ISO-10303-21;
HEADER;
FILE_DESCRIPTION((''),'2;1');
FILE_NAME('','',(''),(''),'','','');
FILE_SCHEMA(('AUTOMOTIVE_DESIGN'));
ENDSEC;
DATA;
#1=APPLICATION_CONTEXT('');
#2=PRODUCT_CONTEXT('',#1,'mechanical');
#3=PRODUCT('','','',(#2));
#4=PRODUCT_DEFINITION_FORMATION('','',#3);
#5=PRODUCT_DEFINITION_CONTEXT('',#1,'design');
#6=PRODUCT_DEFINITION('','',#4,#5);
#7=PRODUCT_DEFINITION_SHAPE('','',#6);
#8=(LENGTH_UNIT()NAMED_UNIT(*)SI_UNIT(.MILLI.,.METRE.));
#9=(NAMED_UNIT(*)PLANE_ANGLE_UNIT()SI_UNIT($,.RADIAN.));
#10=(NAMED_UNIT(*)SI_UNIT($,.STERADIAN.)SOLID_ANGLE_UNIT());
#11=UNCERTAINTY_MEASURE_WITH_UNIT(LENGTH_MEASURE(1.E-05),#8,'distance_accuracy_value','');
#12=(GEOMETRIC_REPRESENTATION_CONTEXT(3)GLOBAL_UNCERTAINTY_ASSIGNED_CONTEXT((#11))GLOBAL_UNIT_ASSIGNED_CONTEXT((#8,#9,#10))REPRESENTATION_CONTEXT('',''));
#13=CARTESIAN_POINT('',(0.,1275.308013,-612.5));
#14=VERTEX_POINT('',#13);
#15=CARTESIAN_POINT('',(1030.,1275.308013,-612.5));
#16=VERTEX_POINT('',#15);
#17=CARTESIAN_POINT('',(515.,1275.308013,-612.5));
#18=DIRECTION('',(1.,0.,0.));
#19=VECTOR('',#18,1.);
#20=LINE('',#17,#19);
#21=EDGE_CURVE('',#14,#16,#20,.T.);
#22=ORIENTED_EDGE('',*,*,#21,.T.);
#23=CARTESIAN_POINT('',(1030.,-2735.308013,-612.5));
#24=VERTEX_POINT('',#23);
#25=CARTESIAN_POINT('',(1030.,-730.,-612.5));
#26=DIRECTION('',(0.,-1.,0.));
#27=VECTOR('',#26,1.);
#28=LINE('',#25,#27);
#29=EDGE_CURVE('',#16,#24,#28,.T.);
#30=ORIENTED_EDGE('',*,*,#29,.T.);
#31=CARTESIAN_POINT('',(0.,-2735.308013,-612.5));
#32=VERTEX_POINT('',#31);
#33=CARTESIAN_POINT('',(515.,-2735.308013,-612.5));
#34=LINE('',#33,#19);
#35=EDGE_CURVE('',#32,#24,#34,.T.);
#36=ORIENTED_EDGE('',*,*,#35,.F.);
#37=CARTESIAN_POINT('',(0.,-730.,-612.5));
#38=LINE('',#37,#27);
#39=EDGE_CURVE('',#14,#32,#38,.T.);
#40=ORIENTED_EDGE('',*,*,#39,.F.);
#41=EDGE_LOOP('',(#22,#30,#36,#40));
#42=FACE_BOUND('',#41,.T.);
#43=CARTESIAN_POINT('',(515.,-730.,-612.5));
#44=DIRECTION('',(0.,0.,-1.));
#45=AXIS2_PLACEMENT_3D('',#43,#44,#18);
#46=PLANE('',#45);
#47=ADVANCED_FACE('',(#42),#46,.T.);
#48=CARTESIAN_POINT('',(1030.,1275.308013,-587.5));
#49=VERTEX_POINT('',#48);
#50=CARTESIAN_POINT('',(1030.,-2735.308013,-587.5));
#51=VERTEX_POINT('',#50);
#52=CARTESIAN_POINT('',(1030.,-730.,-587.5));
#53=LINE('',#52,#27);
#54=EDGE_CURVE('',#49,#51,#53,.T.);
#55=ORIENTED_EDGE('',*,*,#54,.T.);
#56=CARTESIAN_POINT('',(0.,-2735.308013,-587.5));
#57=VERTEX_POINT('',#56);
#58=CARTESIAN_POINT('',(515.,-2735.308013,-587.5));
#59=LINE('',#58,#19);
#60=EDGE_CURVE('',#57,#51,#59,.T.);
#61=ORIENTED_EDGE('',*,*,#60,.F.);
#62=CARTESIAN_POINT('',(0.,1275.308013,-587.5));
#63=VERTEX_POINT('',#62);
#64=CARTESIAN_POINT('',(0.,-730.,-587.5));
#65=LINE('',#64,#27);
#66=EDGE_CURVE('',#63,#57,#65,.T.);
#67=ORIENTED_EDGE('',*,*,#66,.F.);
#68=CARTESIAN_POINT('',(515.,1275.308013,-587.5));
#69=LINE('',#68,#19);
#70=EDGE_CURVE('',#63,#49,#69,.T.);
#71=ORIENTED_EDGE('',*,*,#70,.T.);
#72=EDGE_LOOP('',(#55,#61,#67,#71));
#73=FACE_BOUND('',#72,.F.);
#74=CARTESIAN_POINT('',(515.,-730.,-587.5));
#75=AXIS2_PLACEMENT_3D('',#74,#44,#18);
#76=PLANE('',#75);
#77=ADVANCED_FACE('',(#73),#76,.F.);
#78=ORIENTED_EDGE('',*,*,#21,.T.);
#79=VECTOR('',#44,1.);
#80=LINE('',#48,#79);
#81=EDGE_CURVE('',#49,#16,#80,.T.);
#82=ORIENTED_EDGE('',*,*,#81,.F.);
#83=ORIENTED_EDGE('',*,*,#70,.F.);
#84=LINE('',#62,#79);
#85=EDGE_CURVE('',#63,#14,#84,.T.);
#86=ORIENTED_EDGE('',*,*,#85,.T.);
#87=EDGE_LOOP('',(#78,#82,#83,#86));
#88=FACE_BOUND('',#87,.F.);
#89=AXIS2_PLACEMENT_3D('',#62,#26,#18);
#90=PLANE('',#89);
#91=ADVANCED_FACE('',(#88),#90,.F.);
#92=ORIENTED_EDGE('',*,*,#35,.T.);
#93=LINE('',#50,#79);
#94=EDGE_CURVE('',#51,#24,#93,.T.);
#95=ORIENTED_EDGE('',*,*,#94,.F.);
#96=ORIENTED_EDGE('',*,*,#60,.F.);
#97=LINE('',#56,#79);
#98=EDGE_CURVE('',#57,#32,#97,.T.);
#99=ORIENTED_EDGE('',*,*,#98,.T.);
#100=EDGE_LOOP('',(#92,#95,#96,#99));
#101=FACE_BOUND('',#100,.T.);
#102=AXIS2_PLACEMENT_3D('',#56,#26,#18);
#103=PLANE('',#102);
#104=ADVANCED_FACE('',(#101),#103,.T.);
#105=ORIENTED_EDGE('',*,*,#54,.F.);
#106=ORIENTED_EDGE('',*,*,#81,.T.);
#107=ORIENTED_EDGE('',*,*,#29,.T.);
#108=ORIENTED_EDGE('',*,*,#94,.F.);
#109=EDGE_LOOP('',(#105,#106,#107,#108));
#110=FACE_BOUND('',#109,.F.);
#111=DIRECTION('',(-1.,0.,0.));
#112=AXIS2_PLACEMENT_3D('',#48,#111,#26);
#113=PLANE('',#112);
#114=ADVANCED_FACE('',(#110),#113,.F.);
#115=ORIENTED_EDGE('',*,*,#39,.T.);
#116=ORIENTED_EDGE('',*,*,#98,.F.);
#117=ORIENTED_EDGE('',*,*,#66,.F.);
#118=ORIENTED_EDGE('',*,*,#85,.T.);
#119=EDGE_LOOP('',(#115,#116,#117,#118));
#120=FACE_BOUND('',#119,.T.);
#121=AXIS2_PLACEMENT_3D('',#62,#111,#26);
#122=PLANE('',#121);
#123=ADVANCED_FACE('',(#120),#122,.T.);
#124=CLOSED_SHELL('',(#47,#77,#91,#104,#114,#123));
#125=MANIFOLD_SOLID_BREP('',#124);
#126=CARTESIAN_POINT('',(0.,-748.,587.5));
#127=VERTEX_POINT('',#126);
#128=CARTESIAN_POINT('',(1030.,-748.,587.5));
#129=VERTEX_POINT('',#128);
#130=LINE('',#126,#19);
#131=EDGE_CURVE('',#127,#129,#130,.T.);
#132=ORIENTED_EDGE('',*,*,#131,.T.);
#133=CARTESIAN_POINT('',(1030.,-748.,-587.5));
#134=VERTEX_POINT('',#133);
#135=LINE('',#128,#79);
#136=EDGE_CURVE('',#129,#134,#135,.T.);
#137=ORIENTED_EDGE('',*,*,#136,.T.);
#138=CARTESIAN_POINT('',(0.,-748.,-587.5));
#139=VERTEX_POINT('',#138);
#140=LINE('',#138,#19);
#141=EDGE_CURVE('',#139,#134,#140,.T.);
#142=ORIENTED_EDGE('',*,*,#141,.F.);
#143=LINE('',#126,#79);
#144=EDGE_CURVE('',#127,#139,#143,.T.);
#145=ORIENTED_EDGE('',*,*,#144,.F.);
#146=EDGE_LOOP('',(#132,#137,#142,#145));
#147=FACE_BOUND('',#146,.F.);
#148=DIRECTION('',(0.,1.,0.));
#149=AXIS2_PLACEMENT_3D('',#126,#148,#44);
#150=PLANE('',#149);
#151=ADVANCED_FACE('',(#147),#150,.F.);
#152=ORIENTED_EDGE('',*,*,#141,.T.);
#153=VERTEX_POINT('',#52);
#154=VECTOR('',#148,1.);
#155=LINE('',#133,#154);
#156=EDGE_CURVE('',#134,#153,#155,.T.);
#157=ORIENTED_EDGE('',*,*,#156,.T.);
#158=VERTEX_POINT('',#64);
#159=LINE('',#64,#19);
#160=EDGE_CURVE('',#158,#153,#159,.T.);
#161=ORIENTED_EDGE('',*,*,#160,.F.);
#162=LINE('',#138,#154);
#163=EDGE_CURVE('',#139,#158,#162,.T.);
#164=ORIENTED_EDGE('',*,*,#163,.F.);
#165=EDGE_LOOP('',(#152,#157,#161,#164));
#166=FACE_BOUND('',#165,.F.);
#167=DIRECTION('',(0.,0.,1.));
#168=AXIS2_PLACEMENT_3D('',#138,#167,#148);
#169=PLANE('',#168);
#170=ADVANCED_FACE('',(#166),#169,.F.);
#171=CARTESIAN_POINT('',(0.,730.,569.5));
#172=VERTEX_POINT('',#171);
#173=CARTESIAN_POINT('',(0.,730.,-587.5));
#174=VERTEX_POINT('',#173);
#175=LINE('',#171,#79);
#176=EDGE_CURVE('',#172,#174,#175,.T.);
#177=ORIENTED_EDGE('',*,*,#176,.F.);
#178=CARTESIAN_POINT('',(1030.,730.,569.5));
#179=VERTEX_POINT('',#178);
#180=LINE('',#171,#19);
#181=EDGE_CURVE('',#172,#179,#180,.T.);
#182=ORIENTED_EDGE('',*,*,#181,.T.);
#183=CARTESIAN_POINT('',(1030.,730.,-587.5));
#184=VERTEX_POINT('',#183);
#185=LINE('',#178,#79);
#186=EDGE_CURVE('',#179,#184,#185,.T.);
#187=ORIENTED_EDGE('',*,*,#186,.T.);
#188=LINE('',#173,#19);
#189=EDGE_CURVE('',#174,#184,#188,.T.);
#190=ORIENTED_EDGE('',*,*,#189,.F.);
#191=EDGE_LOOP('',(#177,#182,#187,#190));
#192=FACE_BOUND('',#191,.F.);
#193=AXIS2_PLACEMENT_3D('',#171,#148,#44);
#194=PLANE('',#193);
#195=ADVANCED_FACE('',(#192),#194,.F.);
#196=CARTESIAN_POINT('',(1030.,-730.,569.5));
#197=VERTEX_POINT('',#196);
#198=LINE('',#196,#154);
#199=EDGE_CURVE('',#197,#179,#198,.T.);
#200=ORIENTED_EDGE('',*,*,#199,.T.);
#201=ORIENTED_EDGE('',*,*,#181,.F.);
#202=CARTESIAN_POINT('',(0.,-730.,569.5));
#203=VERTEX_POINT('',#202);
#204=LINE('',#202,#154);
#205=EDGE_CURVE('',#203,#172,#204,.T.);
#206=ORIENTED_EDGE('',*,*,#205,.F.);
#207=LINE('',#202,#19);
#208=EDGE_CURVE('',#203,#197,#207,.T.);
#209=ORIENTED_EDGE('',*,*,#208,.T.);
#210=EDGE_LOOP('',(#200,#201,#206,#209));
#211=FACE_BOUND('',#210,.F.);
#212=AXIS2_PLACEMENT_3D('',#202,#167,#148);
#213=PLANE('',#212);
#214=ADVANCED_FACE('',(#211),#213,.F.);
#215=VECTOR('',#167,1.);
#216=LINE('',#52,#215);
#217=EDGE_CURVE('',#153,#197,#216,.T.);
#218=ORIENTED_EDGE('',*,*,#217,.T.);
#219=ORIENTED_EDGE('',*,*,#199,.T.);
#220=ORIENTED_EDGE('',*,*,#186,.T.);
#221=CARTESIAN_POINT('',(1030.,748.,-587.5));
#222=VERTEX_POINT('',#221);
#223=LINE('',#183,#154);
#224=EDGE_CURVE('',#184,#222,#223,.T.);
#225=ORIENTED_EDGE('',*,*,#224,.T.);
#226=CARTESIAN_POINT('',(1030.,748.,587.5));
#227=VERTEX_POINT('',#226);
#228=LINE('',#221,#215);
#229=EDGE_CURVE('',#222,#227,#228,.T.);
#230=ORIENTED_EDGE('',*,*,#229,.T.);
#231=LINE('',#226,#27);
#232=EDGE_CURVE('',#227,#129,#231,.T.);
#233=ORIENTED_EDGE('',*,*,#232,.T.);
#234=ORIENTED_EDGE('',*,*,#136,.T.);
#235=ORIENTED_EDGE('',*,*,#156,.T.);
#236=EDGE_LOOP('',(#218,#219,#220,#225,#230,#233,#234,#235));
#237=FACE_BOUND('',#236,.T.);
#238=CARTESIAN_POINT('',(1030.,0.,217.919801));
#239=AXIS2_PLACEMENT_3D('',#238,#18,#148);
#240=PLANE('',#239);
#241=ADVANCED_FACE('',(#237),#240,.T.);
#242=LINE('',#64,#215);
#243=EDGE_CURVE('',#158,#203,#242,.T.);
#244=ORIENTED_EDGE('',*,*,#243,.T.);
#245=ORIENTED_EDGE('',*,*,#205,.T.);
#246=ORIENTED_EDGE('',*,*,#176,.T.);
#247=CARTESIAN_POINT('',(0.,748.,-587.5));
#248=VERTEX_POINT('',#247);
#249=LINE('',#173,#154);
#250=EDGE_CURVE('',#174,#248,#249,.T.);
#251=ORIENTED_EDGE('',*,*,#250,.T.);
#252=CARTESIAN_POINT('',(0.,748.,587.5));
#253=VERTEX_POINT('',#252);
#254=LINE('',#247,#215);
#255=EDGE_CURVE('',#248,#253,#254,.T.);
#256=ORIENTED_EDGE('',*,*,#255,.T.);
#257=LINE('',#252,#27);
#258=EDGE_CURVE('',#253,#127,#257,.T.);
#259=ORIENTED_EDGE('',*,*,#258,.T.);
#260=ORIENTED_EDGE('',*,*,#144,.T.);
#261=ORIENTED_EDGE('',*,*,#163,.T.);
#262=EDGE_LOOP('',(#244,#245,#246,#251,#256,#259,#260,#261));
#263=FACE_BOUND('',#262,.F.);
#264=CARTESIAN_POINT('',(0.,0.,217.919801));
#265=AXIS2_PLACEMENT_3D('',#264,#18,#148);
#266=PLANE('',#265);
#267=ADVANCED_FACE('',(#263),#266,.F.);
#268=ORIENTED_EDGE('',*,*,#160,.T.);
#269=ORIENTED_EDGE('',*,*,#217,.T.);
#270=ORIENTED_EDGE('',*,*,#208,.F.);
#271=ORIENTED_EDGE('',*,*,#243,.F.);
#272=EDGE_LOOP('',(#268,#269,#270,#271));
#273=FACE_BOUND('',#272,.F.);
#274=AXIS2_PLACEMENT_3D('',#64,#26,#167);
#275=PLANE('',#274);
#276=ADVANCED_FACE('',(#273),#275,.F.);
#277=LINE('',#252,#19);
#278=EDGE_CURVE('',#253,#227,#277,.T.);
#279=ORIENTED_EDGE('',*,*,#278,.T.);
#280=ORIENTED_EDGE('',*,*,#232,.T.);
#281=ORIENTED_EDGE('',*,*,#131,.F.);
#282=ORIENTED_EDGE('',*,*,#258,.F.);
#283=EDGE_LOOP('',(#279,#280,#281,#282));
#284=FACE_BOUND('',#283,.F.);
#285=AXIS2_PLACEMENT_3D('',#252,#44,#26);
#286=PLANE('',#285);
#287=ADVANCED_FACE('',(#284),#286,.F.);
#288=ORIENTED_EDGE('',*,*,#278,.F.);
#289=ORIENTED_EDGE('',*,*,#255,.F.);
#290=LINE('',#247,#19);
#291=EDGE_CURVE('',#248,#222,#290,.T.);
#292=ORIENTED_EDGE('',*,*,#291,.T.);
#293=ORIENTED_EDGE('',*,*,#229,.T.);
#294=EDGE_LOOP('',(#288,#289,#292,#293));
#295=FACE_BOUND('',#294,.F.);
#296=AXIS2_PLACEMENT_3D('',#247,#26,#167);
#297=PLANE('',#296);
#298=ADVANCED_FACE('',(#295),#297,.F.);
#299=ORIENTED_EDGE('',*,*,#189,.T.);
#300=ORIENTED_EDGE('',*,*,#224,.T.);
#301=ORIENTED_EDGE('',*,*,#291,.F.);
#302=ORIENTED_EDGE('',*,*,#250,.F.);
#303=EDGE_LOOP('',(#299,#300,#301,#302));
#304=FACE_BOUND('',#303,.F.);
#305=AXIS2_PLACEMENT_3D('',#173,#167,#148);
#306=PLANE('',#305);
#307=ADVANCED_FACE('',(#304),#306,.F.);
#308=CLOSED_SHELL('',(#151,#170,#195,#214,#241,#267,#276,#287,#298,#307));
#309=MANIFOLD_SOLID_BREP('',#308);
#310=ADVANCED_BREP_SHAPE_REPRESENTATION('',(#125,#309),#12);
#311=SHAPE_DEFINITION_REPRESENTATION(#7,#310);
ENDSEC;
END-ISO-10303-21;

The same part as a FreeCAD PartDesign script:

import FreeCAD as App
import Part
import Sketcher

V = App.Vector

doc = App.newDocument("Part")
body = doc.addObject("PartDesign::Body", "Body")

# Sketch on YZ plane
sketch1 = body.newObject("Sketcher::SketchObject", "Sketch")
sketch1.AttachmentSupport = (doc.getObject("YZ_Plane"), [""])
sketch1.MapMode = "FlatFace"
sketch1.addGeometry(Part.LineSegment(V(748, -587.5, 0), V(748, 587.5, 0)), False)
sketch1.addGeometry(Part.LineSegment(V(748, 587.5, 0), V(-748, 587.5, 0)), False)
sketch1.addGeometry(Part.LineSegment(V(-748, 587.5, 0), V(-748, -587.5, 0)), False)
sketch1.addGeometry(Part.LineSegment(V(-748, -587.5, 0), V(-730, -587.5, 0)), False)
sketch1.addGeometry(Part.LineSegment(V(-730, -587.5, 0), V(-730, 569.5, 0)), False)
sketch1.addGeometry(Part.LineSegment(V(-730, 569.5, 0), V(730, 569.5, 0)), False)
sketch1.addGeometry(Part.LineSegment(V(730, 569.5, 0), V(730, -587.5, 0)), False)
sketch1.addGeometry(Part.LineSegment(V(730, -587.5, 0), V(748, -587.5, 0)), False)
sketch1.addConstraint(Sketcher.Constraint("Coincident", 0, 2, 1, 1))
sketch1.addConstraint(Sketcher.Constraint("Coincident", 1, 2, 2, 1))
sketch1.addConstraint(Sketcher.Constraint("Coincident", 2, 2, 3, 1))
sketch1.addConstraint(Sketcher.Constraint("Coincident", 3, 2, 4, 1))
sketch1.addConstraint(Sketcher.Constraint("Coincident", 4, 2, 5, 1))
sketch1.addConstraint(Sketcher.Constraint("Coincident", 5, 2, 6, 1))
sketch1.addConstraint(Sketcher.Constraint("Coincident", 6, 2, 7, 1))
sketch1.addConstraint(Sketcher.Constraint("Coincident", 7, 2, 0, 1))
sketch1.addConstraint(Sketcher.Constraint("Vertical", 0))
sketch1.addConstraint(Sketcher.Constraint("Horizontal", 1))
sketch1.addConstraint(Sketcher.Constraint("Vertical", 2))
sketch1.addConstraint(Sketcher.Constraint("Horizontal", 3))
sketch1.addConstraint(Sketcher.Constraint("Vertical", 4))
sketch1.addConstraint(Sketcher.Constraint("Horizontal", 5))
sketch1.addConstraint(Sketcher.Constraint("Vertical", 6))
sketch1.addConstraint(Sketcher.Constraint("Horizontal", 7))
sketch1.addConstraint(Sketcher.Constraint("Symmetric", 0, 2, 2, 2, -1, 1))
sketch1.addConstraint(Sketcher.Constraint("Symmetric", 3, 2, 6, 2, -2))
sketch1.addConstraint(Sketcher.Constraint("DistanceX", 1, 2, 1, 1, 1496.0))
sketch1.addConstraint(Sketcher.Constraint("DistanceX", 3, 1, 3, 2, 18.0))
sketch1.addConstraint(Sketcher.Constraint("DistanceY", 0, 1, 0, 2, 1175.0))
sketch1.addConstraint(Sketcher.Constraint("DistanceY", 4, 1, 4, 2, 1157.0))
pad1 = body.newObject("PartDesign::Pad", "Pad")
pad1.Profile = sketch1
pad1.Length = 1030
body2 = doc.addObject("PartDesign::Body", "Body001")

# Sketch on XY plane
sketch2 = body2.newObject("Sketcher::SketchObject", "Sketch001")
sketch2.AttachmentSupport = (doc.getObject("XY_Plane001"), [""])
sketch2.MapMode = "FlatFace"
sketch2.AttachmentOffset = App.Placement(V(0, 0, -587.5), App.Rotation())
sketch2.addGeometry(Part.LineSegment(V(0, -2735.308013, 0), V(0, 1275.308013, 0)), False)
sketch2.addGeometry(Part.LineSegment(V(0, 1275.308013, 0), V(1030, 1275.308013, 0)), False)
sketch2.addGeometry(Part.LineSegment(V(1030, 1275.308013, 0), V(1030, -2735.308013, 0)), False)
sketch2.addGeometry(Part.LineSegment(V(1030, -2735.308013, 0), V(0, -2735.308013, 0)), False)
sketch2.addConstraint(Sketcher.Constraint("Coincident", 0, 2, 1, 1))
sketch2.addConstraint(Sketcher.Constraint("Coincident", 1, 2, 2, 1))
sketch2.addConstraint(Sketcher.Constraint("Coincident", 2, 2, 3, 1))
sketch2.addConstraint(Sketcher.Constraint("Coincident", 3, 2, 0, 1))
sketch2.addConstraint(Sketcher.Constraint("Vertical", 0))
sketch2.addConstraint(Sketcher.Constraint("Horizontal", 1))
sketch2.addConstraint(Sketcher.Constraint("Vertical", 2))
sketch2.addConstraint(Sketcher.Constraint("Horizontal", 3))
sketch2.addConstraint(Sketcher.Constraint("PointOnObject", 0, 2, -2))
sketch2.addConstraint(Sketcher.Constraint("DistanceX", 1, 1, 1, 2, 1030.0))
sketch2.addConstraint(Sketcher.Constraint("DistanceY", 0, 1, 0, 2, 4010.616026))
sketch2.addConstraint(Sketcher.Constraint("DistanceY", -1, 1, 0, 2, 1275.308013))
pad2 = body2.newObject("PartDesign::Pad", "Pad001")
pad2.Profile = sketch2
pad2.Length = 25
pad2.Reversed = True

doc.recompute()
